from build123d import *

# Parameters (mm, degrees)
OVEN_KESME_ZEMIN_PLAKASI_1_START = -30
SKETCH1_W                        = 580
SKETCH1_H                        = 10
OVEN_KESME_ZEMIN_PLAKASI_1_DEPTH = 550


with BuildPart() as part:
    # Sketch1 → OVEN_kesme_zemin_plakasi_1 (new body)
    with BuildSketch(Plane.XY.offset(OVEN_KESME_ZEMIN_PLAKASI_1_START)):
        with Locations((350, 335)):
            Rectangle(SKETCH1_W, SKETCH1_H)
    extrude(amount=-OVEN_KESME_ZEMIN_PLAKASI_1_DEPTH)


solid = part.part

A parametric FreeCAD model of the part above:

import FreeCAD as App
import Part
import Sketcher
from FreeCAD import Vector

doc = App.newDocument("Part")
body = doc.addObject("PartDesign::Body", "Body")

sketch1 = body.newObject("Sketcher::SketchObject", "Sketch")
sketch1.AttachmentSupport = (doc.getObject("XY_Plane"), [""])
sketch1.MapMode = "FlatFace"
sketch1.AttachmentOffset = App.Placement(Vector(0, 0, -30), App.Rotation())
sketch1.addGeometry(Part.LineSegment(Vector(60, 340, 0), Vector(60, 330, 0)), False)
sketch1.addGeometry(Part.LineSegment(Vector(60, 330, 0), Vector(640, 330, 0)), False)
sketch1.addGeometry(Part.LineSegment(Vector(640, 330, 0), Vector(640, 340, 0)), False)
sketch1.addGeometry(Part.LineSegment(Vector(640, 340, 0), Vector(60, 340, 0)), False)
sketch1.addConstraint(Sketcher.Constraint("Coincident", 0, 2, 1, 1))
sketch1.addConstraint(Sketcher.Constraint("Coincident", 1, 2, 2, 1))
sketch1.addConstraint(Sketcher.Constraint("Coincident", 2, 2, 3, 1))
sketch1.addConstraint(Sketcher.Constraint("Coincident", 3, 2, 0, 1))
sketch1.addConstraint(Sketcher.Constraint("Vertical", 0))
sketch1.addConstraint(Sketcher.Constraint("Horizontal", 1))
sketch1.addConstraint(Sketcher.Constraint("Vertical", 2))
sketch1.addConstraint(Sketcher.Constraint("Horizontal", 3))
sketch1.addConstraint(Sketcher.Constraint("DistanceX", 1, 1, 1, 2, 580.0))
sketch1.addConstraint(Sketcher.Constraint("DistanceY", 0, 2, 0, 1, 10.0))
sketch1.addConstraint(Sketcher.Constraint("DistanceX", -1, 1, 0, 2, 60.0))
sketch1.addConstraint(Sketcher.Constraint("DistanceY", -1, 1, 0, 2, 330.0))
pad1 = body.newObject("PartDesign::Pad", "Pad")
pad1.Profile = sketch1
pad1.Length = 550
pad1.Reversed = True

doc.recompute()
